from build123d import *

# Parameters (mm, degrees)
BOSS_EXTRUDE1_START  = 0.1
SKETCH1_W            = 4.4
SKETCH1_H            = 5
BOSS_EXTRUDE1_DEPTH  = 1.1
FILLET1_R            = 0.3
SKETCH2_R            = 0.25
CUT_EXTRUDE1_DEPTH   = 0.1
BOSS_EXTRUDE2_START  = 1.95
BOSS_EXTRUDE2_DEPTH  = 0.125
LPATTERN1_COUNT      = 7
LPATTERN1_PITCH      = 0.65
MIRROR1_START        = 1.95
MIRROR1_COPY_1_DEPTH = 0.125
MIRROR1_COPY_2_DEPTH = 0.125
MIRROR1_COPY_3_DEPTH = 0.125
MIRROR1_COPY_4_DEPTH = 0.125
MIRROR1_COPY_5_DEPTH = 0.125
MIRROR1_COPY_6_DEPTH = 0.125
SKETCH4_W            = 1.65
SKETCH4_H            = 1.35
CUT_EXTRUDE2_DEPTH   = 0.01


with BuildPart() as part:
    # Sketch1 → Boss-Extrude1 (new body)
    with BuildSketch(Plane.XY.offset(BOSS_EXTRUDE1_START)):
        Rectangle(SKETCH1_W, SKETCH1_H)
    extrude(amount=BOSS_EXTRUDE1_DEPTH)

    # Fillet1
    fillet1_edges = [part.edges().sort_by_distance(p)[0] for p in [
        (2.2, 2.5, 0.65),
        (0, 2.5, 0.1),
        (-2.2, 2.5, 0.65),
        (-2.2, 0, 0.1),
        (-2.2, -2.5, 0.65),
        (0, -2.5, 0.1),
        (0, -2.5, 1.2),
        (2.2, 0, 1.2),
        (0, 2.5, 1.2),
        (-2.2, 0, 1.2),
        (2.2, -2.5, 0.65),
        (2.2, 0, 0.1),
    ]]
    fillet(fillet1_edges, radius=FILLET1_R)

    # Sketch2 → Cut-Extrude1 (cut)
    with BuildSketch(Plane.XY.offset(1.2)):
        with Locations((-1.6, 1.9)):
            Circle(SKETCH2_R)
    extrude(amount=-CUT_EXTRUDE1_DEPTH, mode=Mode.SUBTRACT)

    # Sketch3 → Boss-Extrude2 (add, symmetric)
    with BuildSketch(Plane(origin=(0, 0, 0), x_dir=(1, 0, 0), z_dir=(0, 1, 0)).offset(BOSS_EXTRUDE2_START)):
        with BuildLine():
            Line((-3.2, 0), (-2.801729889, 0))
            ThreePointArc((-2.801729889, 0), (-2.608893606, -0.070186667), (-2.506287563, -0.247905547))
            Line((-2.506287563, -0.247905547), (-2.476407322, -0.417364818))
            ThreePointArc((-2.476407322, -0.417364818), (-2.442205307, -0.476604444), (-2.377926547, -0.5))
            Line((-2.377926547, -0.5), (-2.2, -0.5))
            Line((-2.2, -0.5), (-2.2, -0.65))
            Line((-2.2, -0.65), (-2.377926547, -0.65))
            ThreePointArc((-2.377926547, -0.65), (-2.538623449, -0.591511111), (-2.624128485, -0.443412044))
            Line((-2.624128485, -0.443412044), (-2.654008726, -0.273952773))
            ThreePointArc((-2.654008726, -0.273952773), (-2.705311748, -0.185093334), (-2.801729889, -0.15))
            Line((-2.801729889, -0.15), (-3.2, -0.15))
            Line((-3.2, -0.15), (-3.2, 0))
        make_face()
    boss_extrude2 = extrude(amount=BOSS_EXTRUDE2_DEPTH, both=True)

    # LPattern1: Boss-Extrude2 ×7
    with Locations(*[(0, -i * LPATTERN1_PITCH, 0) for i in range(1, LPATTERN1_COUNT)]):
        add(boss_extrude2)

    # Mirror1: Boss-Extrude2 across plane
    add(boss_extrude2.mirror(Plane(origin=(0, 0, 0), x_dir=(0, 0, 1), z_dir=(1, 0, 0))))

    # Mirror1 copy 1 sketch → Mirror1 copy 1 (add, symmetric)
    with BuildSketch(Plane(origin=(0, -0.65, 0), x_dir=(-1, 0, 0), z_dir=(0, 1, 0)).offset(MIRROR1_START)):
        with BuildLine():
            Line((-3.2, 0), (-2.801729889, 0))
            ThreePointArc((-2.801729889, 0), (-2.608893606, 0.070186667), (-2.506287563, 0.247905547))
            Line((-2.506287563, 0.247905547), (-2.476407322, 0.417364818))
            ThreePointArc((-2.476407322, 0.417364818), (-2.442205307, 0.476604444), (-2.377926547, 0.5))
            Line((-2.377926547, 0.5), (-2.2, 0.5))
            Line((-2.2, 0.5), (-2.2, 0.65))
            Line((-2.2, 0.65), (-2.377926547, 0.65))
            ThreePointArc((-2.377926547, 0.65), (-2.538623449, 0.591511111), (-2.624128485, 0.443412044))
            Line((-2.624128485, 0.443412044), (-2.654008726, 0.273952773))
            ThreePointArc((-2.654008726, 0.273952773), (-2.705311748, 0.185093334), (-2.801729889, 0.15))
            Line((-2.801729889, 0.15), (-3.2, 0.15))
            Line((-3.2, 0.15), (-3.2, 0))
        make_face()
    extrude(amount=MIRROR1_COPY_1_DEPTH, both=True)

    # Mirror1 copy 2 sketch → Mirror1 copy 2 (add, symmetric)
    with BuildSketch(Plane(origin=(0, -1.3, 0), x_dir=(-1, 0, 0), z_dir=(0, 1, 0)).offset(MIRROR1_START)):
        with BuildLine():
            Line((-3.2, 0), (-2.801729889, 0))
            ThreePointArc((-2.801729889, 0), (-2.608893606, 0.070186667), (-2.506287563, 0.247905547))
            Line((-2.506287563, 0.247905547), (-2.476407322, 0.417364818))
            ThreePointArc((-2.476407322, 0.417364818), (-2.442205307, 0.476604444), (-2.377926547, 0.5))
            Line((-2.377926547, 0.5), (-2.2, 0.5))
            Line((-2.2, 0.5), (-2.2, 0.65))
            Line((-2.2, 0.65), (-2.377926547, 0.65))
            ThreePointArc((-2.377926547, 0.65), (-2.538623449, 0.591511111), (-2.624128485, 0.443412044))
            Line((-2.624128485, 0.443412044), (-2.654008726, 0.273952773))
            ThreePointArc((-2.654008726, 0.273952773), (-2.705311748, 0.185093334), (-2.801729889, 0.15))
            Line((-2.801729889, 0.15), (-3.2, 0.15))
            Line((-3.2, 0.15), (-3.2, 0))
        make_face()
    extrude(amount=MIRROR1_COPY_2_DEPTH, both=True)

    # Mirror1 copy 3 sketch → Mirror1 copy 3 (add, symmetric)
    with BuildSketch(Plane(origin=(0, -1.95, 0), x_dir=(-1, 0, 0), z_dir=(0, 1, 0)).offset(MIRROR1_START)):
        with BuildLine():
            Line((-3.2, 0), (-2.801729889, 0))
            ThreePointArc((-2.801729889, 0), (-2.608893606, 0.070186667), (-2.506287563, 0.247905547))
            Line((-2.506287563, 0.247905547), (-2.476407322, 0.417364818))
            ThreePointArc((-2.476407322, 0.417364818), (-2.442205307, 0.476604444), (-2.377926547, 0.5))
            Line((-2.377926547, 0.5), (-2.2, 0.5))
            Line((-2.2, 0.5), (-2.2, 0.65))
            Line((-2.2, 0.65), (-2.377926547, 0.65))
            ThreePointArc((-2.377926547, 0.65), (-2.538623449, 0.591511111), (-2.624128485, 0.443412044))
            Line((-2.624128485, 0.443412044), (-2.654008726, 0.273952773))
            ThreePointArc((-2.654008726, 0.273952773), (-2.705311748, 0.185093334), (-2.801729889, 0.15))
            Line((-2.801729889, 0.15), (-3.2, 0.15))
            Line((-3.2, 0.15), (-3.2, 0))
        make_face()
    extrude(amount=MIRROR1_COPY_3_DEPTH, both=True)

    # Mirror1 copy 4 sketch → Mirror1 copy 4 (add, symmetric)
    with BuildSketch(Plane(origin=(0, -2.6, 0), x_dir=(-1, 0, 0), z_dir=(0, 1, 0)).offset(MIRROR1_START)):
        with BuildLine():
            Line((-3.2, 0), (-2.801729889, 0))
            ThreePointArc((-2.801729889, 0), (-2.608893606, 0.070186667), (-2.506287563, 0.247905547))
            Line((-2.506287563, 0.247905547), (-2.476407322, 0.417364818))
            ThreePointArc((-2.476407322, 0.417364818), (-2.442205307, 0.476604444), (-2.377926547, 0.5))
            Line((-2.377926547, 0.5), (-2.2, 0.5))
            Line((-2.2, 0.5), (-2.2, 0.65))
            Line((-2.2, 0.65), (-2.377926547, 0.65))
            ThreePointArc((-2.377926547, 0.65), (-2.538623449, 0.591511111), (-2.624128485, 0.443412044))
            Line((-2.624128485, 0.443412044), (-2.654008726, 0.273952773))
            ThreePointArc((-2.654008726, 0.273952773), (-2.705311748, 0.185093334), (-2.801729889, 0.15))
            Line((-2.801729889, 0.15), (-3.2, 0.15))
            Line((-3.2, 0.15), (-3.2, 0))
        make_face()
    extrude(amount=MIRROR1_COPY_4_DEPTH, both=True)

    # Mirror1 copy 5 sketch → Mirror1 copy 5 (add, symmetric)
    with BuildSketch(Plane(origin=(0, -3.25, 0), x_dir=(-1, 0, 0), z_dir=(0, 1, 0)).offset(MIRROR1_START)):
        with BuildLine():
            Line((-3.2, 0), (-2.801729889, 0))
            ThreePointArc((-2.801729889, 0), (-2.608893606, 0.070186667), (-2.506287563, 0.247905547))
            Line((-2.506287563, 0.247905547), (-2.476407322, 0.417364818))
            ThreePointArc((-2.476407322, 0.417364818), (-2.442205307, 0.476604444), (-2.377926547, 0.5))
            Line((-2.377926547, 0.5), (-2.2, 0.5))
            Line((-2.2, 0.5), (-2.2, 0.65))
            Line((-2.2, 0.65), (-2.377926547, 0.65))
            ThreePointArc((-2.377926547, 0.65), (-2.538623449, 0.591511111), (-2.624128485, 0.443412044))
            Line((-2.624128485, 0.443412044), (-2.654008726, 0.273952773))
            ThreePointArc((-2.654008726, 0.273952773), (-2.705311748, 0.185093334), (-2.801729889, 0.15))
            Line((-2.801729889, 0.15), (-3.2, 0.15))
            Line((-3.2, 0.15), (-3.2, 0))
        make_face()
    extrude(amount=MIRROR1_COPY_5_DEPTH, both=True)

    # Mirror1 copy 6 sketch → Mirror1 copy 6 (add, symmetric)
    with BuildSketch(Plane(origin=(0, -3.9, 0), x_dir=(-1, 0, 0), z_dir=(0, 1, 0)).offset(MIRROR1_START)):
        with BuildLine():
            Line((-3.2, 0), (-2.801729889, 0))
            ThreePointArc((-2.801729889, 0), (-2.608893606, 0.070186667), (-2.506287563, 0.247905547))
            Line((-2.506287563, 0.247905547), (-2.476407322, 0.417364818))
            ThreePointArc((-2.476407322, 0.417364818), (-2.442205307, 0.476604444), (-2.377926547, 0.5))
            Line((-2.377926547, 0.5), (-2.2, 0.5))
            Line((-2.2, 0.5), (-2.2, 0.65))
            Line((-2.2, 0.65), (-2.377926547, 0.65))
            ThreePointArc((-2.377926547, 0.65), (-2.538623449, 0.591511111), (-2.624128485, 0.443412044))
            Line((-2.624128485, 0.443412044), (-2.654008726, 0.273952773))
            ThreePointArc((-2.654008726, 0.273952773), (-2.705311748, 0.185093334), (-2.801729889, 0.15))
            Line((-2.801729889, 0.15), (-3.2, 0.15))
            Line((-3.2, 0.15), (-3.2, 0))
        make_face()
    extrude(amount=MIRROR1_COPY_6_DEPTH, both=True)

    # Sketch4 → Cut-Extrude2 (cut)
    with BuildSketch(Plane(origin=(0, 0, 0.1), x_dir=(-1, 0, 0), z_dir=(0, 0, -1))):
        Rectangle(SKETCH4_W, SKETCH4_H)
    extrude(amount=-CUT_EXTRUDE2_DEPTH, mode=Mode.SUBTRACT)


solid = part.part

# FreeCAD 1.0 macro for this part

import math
import FreeCAD as App
import Part
import Sketcher
from FreeCAD import Vector
Q = App.Units.Quantity

doc = App.newDocument("Part")
body = doc.addObject("PartDesign::Body", "Body")

# Sketch on XY plane
sketch1 = body.newObject("Sketcher::SketchObject", "Sketch")
sketch1.AttachmentSupport = (doc.getObject("XY_Plane"), [""])
sketch1.MapMode = "FlatFace"
sketch1.AttachmentOffset = App.Placement(Vector(0, 0, 0.1), App.Rotation())
sketch1.addGeometry(Part.LineSegment(Vector(-2.2, 2.5, 0), Vector(-2.2, -2.5, 0)), False)
sketch1.addGeometry(Part.LineSegment(Vector(-2.2, -2.5, 0), Vector(2.2, -2.5, 0)), False)
sketch1.addGeometry(Part.LineSegment(Vector(2.2, -2.5, 0), Vector(2.2, 2.5, 0)), False)
sketch1.addGeometry(Part.LineSegment(Vector(2.2, 2.5, 0), Vector(-2.2, 2.5, 0)), False)
sketch1.addConstraint(Sketcher.Constraint("Coincident", 0, 2, 1, 1))
sketch1.addConstraint(Sketcher.Constraint("Coincident", 1, 2, 2, 1))
sketch1.addConstraint(Sketcher.Constraint("Coincident", 2, 2, 3, 1))
sketch1.addConstraint(Sketcher.Constraint("Coincident", 3, 2, 0, 1))
sketch1.addConstraint(Sketcher.Constraint("Vertical", 0))
sketch1.addConstraint(Sketcher.Constraint("Horizontal", 1))
sketch1.addConstraint(Sketcher.Constraint("Vertical", 2))
sketch1.addConstraint(Sketcher.Constraint("Horizontal", 3))
sketch1.addConstraint(Sketcher.Constraint("Symmetric", 0, 2, 2, 2, -1, 1))
sketch1.addConstraint(Sketcher.Constraint("DistanceY", 0, 2, 0, 1, Q("5 mm")))
sketch1.addConstraint(Sketcher.Constraint("DistanceX", 1, 1, 1, 2, Q("4.4 mm")))
pad1 = body.newObject("PartDesign::Pad", "Pad")
pad1.Profile = sketch1
pad1.Length = 1.1
doc.recompute()

fillet = body.newObject("PartDesign::Fillet", "Fillet")
fillet.Base = (pad1, ["Edge1"])
fillet.UseAllEdges = True
fillet.Radius = 0.3

# Sketch on XY plane
sketch2 = body.newObject("Sketcher::SketchObject", "Sketch001")
sketch2.AttachmentSupport = (doc.getObject("XY_Plane"), [""])
sketch2.MapMode = "FlatFace"
sketch2.AttachmentOffset = App.Placement(Vector(0, 0, 1.2), App.Rotation())
sketch2.addGeometry(Part.Circle(Vector(-1.6, 1.9, 0), Vector(0, 0, 1), 0.25), False)
sketch2.addConstraint(Sketcher.Constraint("Diameter", 0, Q("0.5 mm")))
sketch2.addConstraint(Sketcher.Constraint("DistanceX", 0, 3, -1, 1, Q("1.6 mm")))
sketch2.addConstraint(Sketcher.Constraint("DistanceY", -1, 1, 0, 3, Q("1.9 mm")))
pocket1 = body.newObject("PartDesign::Pocket", "Pocket")
pocket1.Profile = sketch2
pocket1.Length = 0.1

# Sketch on XZ plane
sketch3 = body.newObject("Sketcher::SketchObject", "Sketch002")
sketch3.AttachmentSupport = (doc.getObject("XZ_Plane"), [""])
sketch3.MapMode = "FlatFace"
sketch3.AttachmentOffset = App.Placement(Vector(0, 0, -1.95), App.Rotation())
sketch3.addGeometry(Part.LineSegment(Vector(-2.8, 0, 0), Vector(-3.2, 0, 0)), False)
sketch3.addGeometry(Part.LineSegment(Vector(-3.2, 0, 0), Vector(-3.2, 0.15, 0)), False)
sketch3.addGeometry(Part.LineSegment(Vector(-3.2, 0.15, 0), Vector(-2.8, 0.15, 0)), False)
sketch3.addGeometry(Part.ArcOfCircle(Part.Circle(Vector(-2.8, 0.3, 0), Vector(0, 0, 1), 0.15), math.radians(-90), math.radians(-10)), False)
sketch3.addGeometry(Part.LineSegment(Vector(-2.65, 0.27, 0), Vector(-2.62, 0.44, 0)), False)
sketch3.addGeometry(Part.ArcOfCircle(Part.Circle(Vector(-2.38, 0.4, 0), Vector(0, 0, 1), 0.25), math.radians(90), math.radians(170)), False)
sketch3.addGeometry(Part.LineSegment(Vector(-2.38, 0.65, 0), Vector(-2.2, 0.65, 0)), False)
sketch3.addGeometry(Part.LineSegment(Vector(-2.2, 0.65, 0), Vector(-2.2, 0.5, 0)), False)
sketch3.addGeometry(Part.LineSegment(Vector(-2.2, 0.5, 0), Vector(-2.38, 0.5, 0)), False)
sketch3.addGeometry(Part.ArcOfCircle(Part.Circle(Vector(-2.38, 0.4, 0), Vector(0, 0, 1), 0.1), math.radians(90), math.radians(170)), False)
sketch3.addGeometry(Part.LineSegment(Vector(-2.48, 0.42, 0), Vector(-2.51, 0.25, 0)), False)
sketch3.addGeometry(Part.ArcOfCircle(Part.Circle(Vector(-2.8, 0.3, 0), Vector(0, 0, 1), 0.3), math.radians(-90), math.radians(-10)), False)
sketch3.addConstraint(Sketcher.Constraint("Coincident", 0, 2, 1, 1))
sketch3.addConstraint(Sketcher.Constraint("Coincident", 1, 2, 2, 1))
sketch3.addConstraint(Sketcher.Constraint("Tangent", 2, 2, 3, 1))
sketch3.addConstraint(Sketcher.Constraint("Tangent", 3, 2, 4, 1))
sketch3.addConstraint(Sketcher.Constraint("Tangent", 4, 2, 5, 2))
sketch3.addConstraint(Sketcher.Constraint("Tangent", 5, 1, 6, 1))
sketch3.addConstraint(Sketcher.Constraint("Coincident", 6, 2, 7, 1))
sketch3.addConstraint(Sketcher.Constraint("Coincident", 7, 2, 8, 1))
sketch3.addConstraint(Sketcher.Constraint("Tangent", 8, 2, 9, 1))
sketch3.addConstraint(Sketcher.Constraint("Tangent", 9, 2, 10, 1))
sketch3.addConstraint(Sketcher.Constraint("Tangent", 10, 2, 11, 2))
sketch3.addConstraint(Sketcher.Constraint("Tangent", 11, 1, 0, 1))
sketch3.addConstraint(Sketcher.Constraint("Horizontal", 0))
sketch3.addConstraint(Sketcher.Constraint("Vertical", 1))
sketch3.addConstraint(Sketcher.Constraint("Horizontal", 2))
sketch3.addConstraint(Sketcher.Constraint("Horizontal", 6))
sketch3.addConstraint(Sketcher.Constraint("Vertical", 7))
sketch3.addConstraint(Sketcher.Constraint("Horizontal", 8))
sketch3.addConstraint(Sketcher.Constraint("Coincident", 9, 3, 5, 3))
sketch3.addConstraint(Sketcher.Constraint("Coincident", 11, 3, 3, 3))
sketch3.addConstraint(Sketcher.Constraint("PointOnObject", 0, 2, -1))
sketch3.addConstraint(Sketcher.Constraint("Parallel", 4, 10))
sketch3.addConstraint(Sketcher.Constraint("Radius", 9, Q("0.1 mm")))
sketch3.addConstraint(Sketcher.Constraint("Radius", 11, Q("0.3 mm")))
sketch3.addConstraint(Sketcher.Constraint("Angle", 4, Q("80 deg")))
sketch3.addConstraint(Sketcher.Constraint("Radius", 3, Q("0.15 mm")))
sketch3.addConstraint(Sketcher.Constraint("DistanceY", -1, 1, 5, 3, Q("0.4 mm")))
sketch3.addConstraint(Sketcher.Constraint("DistanceX", 0, 2, -1, 1, Q("3.2 mm")))
sketch3.addConstraint(Sketcher.Constraint("DistanceX", 6, 2, -1, 1, Q("2.2 mm")))
sketch3.addConstraint(Sketcher.Constraint("DistanceX", 0, 2, 0, 1, Q("0.39827 mm")))
pad2 = body.newObject("PartDesign::Pad", "Pad001")
pad2.Profile = sketch3
pad2.Length = 0.25
pad2.Midplane = True
doc.recompute()

linearpattern = body.newObject("PartDesign::LinearPattern", "LinearPattern")
linearpattern.Originals = [pad2]
linearpattern.Direction = (doc.getObject("Y_Axis"), [""])
linearpattern.Mode = "offset"
linearpattern.Offset = 0.65
linearpattern.Occurrences = 7
linearpattern.Reversed = True
body.Tip = linearpattern
doc.recompute()

mirrored = body.newObject("PartDesign::Mirrored", "Mirrored")
mirrored.Originals = [pad2]
mirrored.MirrorPlane = (doc.getObject("YZ_Plane"), [""])
body.Tip = mirrored

# Sketch on XZ plane
sketch4 = body.newObject("Sketcher::SketchObject", "Sketch003")
sketch4.AttachmentSupport = (doc.getObject("XZ_Plane"), [""])
sketch4.MapMode = "FlatFace"
sketch4.AttachmentOffset = App.Placement(Vector(0, 0, -1.3), App.Rotation())
sketch4.addGeometry(Part.LineSegment(Vector(3.2, 0, 0), Vector(2.8, 0, 0)), False)
sketch4.addGeometry(Part.ArcOfCircle(Part.Circle(Vector(2.8, 0.3, 0), Vector(0, 0, 1), 0.3), math.radians(-170), math.radians(-90)), False)
sketch4.addGeometry(Part.LineSegment(Vector(2.51, 0.25, 0), Vector(2.48, 0.42, 0)), False)
sketch4.addGeometry(Part.ArcOfCircle(Part.Circle(Vector(2.38, 0.4, 0), Vector(0, 0, 1), 0.1), math.radians(10), math.radians(90)), False)
sketch4.addGeometry(Part.LineSegment(Vector(2.38, 0.5, 0), Vector(2.2, 0.5, 0)), False)
sketch4.addGeometry(Part.LineSegment(Vector(2.2, 0.5, 0), Vector(2.2, 0.65, 0)), False)
sketch4.addGeometry(Part.LineSegment(Vector(2.2, 0.65, 0), Vector(2.38, 0.65, 0)), False)
sketch4.addGeometry(Part.ArcOfCircle(Part.Circle(Vector(2.38, 0.4, 0), Vector(0, 0, 1), 0.25), math.radians(10), math.radians(90)), False)
sketch4.addGeometry(Part.LineSegment(Vector(2.62, 0.44, 0), Vector(2.65, 0.27, 0)), False)
sketch4.addGeometry(Part.ArcOfCircle(Part.Circle(Vector(2.8, 0.3, 0), Vector(0, 0, 1), 0.15), math.radians(-170), math.radians(-90)), False)
sketch4.addGeometry(Part.LineSegment(Vector(2.8, 0.15, 0), Vector(3.2, 0.15, 0)), False)
sketch4.addGeometry(Part.LineSegment(Vector(3.2, 0.15, 0), Vector(3.2, 0, 0)), False)
sketch4.addConstraint(Sketcher.Constraint("Tangent", 0, 2, 1, 2))
sketch4.addConstraint(Sketcher.Constraint("Tangent", 1, 1, 2, 1))
sketch4.addConstraint(Sketcher.Constraint("Tangent", 2, 2, 3, 1))
sketch4.addConstraint(Sketcher.Constraint("Tangent", 3, 2, 4, 1))
sketch4.addConstraint(Sketcher.Constraint("Coincident", 4, 2, 5, 1))
sketch4.addConstraint(Sketcher.Constraint("Coincident", 5, 2, 6, 1))
sketch4.addConstraint(Sketcher.Constraint("Tangent", 6, 2, 7, 2))
sketch4.addConstraint(Sketcher.Constraint("Tangent", 7, 1, 8, 1))
sketch4.addConstraint(Sketcher.Constraint("Tangent", 8, 2, 9, 1))
sketch4.addConstraint(Sketcher.Constraint("Tangent", 9, 2, 10, 1))
sketch4.addConstraint(Sketcher.Constraint("Coincident", 10, 2, 11, 1))
sketch4.addConstraint(Sketcher.Constraint("Coincident", 11, 2, 0, 1))
sketch4.addConstraint(Sketcher.Constraint("Horizontal", 0))
sketch4.addConstraint(Sketcher.Constraint("Horizontal", 4))
sketch4.addConstraint(Sketcher.Constraint("Vertical", 5))
sketch4.addConstraint(Sketcher.Constraint("Horizontal", 6))
sketch4.addConstraint(Sketcher.Constraint("Horizontal", 10))
sketch4.addConstraint(Sketcher.Constraint("Vertical", 11))
sketch4.addConstraint(Sketcher.Constraint("Coincident", 7, 3, 3, 3))
sketch4.addConstraint(Sketcher.Constraint("Coincident", 9, 3, 1, 3))
sketch4.addConstraint(Sketcher.Constraint("PointOnObject", 0, 2, -1))
sketch4.addConstraint(Sketcher.Constraint("Parallel", 2, 8))
sketch4.addConstraint(Sketcher.Constraint("Radius", 1, Q("0.3 mm")))
sketch4.addConstraint(Sketcher.Constraint("Radius", 3, Q("0.1 mm")))
sketch4.addConstraint(Sketcher.Constraint("Angle", 2, Q("100 deg")))
sketch4.addConstraint(Sketcher.Constraint("Radius", 7, Q("0.25 mm")))
sketch4.addConstraint(Sketcher.Constraint("DistanceY", -1, 1, 3, 3, Q("0.4 mm")))
sketch4.addConstraint(Sketcher.Constraint("DistanceX", -1, 1, 4, 2, Q("2.2 mm")))
sketch4.addConstraint(Sketcher.Constraint("DistanceX", -1, 1, 10, 2, Q("3.2 mm")))
sketch4.addConstraint(Sketcher.Constraint("DistanceX", 0, 2, 0, 1, Q("0.39827 mm")))
pad3 = body.newObject("PartDesign::Pad", "Pad002")
pad3.Profile = sketch4
pad3.Length = 0.25
pad3.Midplane = True

# Sketch on XZ plane
sketch5 = body.newObject("Sketcher::SketchObject", "Sketch004")
sketch5.AttachmentSupport = (doc.getObject("XZ_Plane"), [""])
sketch5.MapMode = "FlatFace"
sketch5.AttachmentOffset = App.Placement(Vector(0, 0, -0.65), App.Rotation())
sketch5.addGeometry(Part.LineSegment(Vector(3.2, 0, 0), Vector(2.8, 0, 0)), False)
sketch5.addGeometry(Part.ArcOfCircle(Part.Circle(Vector(2.8, 0.3, 0), Vector(0, 0, 1), 0.3), math.radians(-170), math.radians(-90)), False)
sketch5.addGeometry(Part.LineSegment(Vector(2.51, 0.25, 0), Vector(2.48, 0.42, 0)), False)
sketch5.addGeometry(Part.ArcOfCircle(Part.Circle(Vector(2.38, 0.4, 0), Vector(0, 0, 1), 0.1), math.radians(10), math.radians(90)), False)
sketch5.addGeometry(Part.LineSegment(Vector(2.38, 0.5, 0), Vector(2.2, 0.5, 0)), False)
sketch5.addGeometry(Part.LineSegment(Vector(2.2, 0.5, 0), Vector(2.2, 0.65, 0)), False)
sketch5.addGeometry(Part.LineSegment(Vector(2.2, 0.65, 0), Vector(2.38, 0.65, 0)), False)
sketch5.addGeometry(Part.ArcOfCircle(Part.Circle(Vector(2.38, 0.4, 0), Vector(0, 0, 1), 0.25), math.radians(10), math.radians(90)), False)
sketch5.addGeometry(Part.LineSegment(Vector(2.62, 0.44, 0), Vector(2.65, 0.27, 0)), False)
sketch5.addGeometry(Part.ArcOfCircle(Part.Circle(Vector(2.8, 0.3, 0), Vector(0, 0, 1), 0.15), math.radians(-170), math.radians(-90)), False)
sketch5.addGeometry(Part.LineSegment(Vector(2.8, 0.15, 0), Vector(3.2, 0.15, 0)), False)
sketch5.addGeometry(Part.LineSegment(Vector(3.2, 0.15, 0), Vector(3.2, 0, 0)), False)
sketch5.addConstraint(Sketcher.Constraint("Tangent", 0, 2, 1, 2))
sketch5.addConstraint(Sketcher.Constraint("Tangent", 1, 1, 2, 1))
sketch5.addConstraint(Sketcher.Constraint("Tangent", 2, 2, 3, 1))
sketch5.addConstraint(Sketcher.Constraint("Tangent", 3, 2, 4, 1))
sketch5.addConstraint(Sketcher.Constraint("Coincident", 4, 2, 5, 1))
sketch5.addConstraint(Sketcher.Constraint("Coincident", 5, 2, 6, 1))
sketch5.addConstraint(Sketcher.Constraint("Tangent", 6, 2, 7, 2))
sketch5.addConstraint(Sketcher.Constraint("Tangent", 7, 1, 8, 1))
sketch5.addConstraint(Sketcher.Constraint("Tangent", 8, 2, 9, 1))
sketch5.addConstraint(Sketcher.Constraint("Tangent", 9, 2, 10, 1))
sketch5.addConstraint(Sketcher.Constraint("Coincident", 10, 2, 11, 1))
sketch5.addConstraint(Sketcher.Constraint("Coincident", 11, 2, 0, 1))
sketch5.addConstraint(Sketcher.Constraint("Horizontal", 0))
sketch5.addConstraint(Sketcher.Constraint("Horizontal", 4))
sketch5.addConstraint(Sketcher.Constraint("Vertical", 5))
sketch5.addConstraint(Sketcher.Constraint("Horizontal", 6))
sketch5.addConstraint(Sketcher.Constraint("Horizontal", 10))
sketch5.addConstraint(Sketcher.Constraint("Vertical", 11))
sketch5.addConstraint(Sketcher.Constraint("Coincident", 7, 3, 3, 3))
sketch5.addConstraint(Sketcher.Constraint("Coincident", 9, 3, 1, 3))
sketch5.addConstraint(Sketcher.Constraint("PointOnObject", 0, 2, -1))
sketch5.addConstraint(Sketcher.Constraint("Parallel", 2, 8))
sketch5.addConstraint(Sketcher.Constraint("Radius", 1, Q("0.3 mm")))
sketch5.addConstraint(Sketcher.Constraint("Radius", 3, Q("0.1 mm")))
sketch5.addConstraint(Sketcher.Constraint("Angle", 2, Q("100 deg")))
sketch5.addConstraint(Sketcher.Constraint("Radius", 7, Q("0.25 mm")))
sketch5.addConstraint(Sketcher.Constraint("DistanceY", -1, 1, 3, 3, Q("0.4 mm")))
sketch5.addConstraint(Sketcher.Constraint("DistanceX", -1, 1, 4, 2, Q("2.2 mm")))
sketch5.addConstraint(Sketcher.Constraint("DistanceX", -1, 1, 10, 2, Q("3.2 mm")))
sketch5.addConstraint(Sketcher.Constraint("DistanceX", 0, 2, 0, 1, Q("0.39827 mm")))
pad4 = body.newObject("PartDesign::Pad", "Pad003")
pad4.Profile = sketch5
pad4.Length = 0.25
pad4.Midplane = True

# Sketch on XZ plane
sketch6 = body.newObject("Sketcher::SketchObject", "Sketch005")
sketch6.AttachmentSupport = (doc.getObject("XZ_Plane"), [""])
sketch6.MapMode = "FlatFace"
sketch6.addGeometry(Part.LineSegment(Vector(3.2, 0, 0), Vector(2.8, 0, 0)), False)
sketch6.addGeometry(Part.ArcOfCircle(Part.Circle(Vector(2.8, 0.3, 0), Vector(0, 0, 1), 0.3), math.radians(-170), math.radians(-90)), False)
sketch6.addGeometry(Part.LineSegment(Vector(2.51, 0.25, 0), Vector(2.48, 0.42, 0)), False)
sketch6.addGeometry(Part.ArcOfCircle(Part.Circle(Vector(2.38, 0.4, 0), Vector(0, 0, 1), 0.1), math.radians(10), math.radians(90)), False)
sketch6.addGeometry(Part.LineSegment(Vector(2.38, 0.5, 0), Vector(2.2, 0.5, 0)), False)
sketch6.addGeometry(Part.LineSegment(Vector(2.2, 0.5, 0), Vector(2.2, 0.65, 0)), False)
sketch6.addGeometry(Part.LineSegment(Vector(2.2, 0.65, 0), Vector(2.38, 0.65, 0)), False)
sketch6.addGeometry(Part.ArcOfCircle(Part.Circle(Vector(2.38, 0.4, 0), Vector(0, 0, 1), 0.25), math.radians(10), math.radians(90)), False)
sketch6.addGeometry(Part.LineSegment(Vector(2.62, 0.44, 0), Vector(2.65, 0.27, 0)), False)
sketch6.addGeometry(Part.ArcOfCircle(Part.Circle(Vector(2.8, 0.3, 0), Vector(0, 0, 1), 0.15), math.radians(-170), math.radians(-90)), False)
sketch6.addGeometry(Part.LineSegment(Vector(2.8, 0.15, 0), Vector(3.2, 0.15, 0)), False)
sketch6.addGeometry(Part.LineSegment(Vector(3.2, 0.15, 0), Vector(3.2, 0, 0)), False)
sketch6.addConstraint(Sketcher.Constraint("Tangent", 0, 2, 1, 2))
sketch6.addConstraint(Sketcher.Constraint("Tangent", 1, 1, 2, 1))
sketch6.addConstraint(Sketcher.Constraint("Tangent", 2, 2, 3, 1))
sketch6.addConstraint(Sketcher.Constraint("Tangent", 3, 2, 4, 1))
sketch6.addConstraint(Sketcher.Constraint("Coincident", 4, 2, 5, 1))
sketch6.addConstraint(Sketcher.Constraint("Coincident", 5, 2, 6, 1))
sketch6.addConstraint(Sketcher.Constraint("Tangent", 6, 2, 7, 2))
sketch6.addConstraint(Sketcher.Constraint("Tangent", 7, 1, 8, 1))
sketch6.addConstraint(Sketcher.Constraint("Tangent", 8, 2, 9, 1))
sketch6.addConstraint(Sketcher.Constraint("Tangent", 9, 2, 10, 1))
sketch6.addConstraint(Sketcher.Constraint("Coincident", 10, 2, 11, 1))
sketch6.addConstraint(Sketcher.Constraint("Coincident", 11, 2, 0, 1))
sketch6.addConstraint(Sketcher.Constraint("Horizontal", 0))
sketch6.addConstraint(Sketcher.Constraint("Horizontal", 4))
sketch6.addConstraint(Sketcher.Constraint("Vertical", 5))
sketch6.addConstraint(Sketcher.Constraint("Horizontal", 6))
sketch6.addConstraint(Sketcher.Constraint("Horizontal", 10))
sketch6.addConstraint(Sketcher.Constraint("Vertical", 11))
sketch6.addConstraint(Sketcher.Constraint("Coincident", 7, 3, 3, 3))
sketch6.addConstraint(Sketcher.Constraint("Coincident", 9, 3, 1, 3))
sketch6.addConstraint(Sketcher.Constraint("PointOnObject", 0, 2, -1))
sketch6.addConstraint(Sketcher.Constraint("Parallel", 2, 8))
sketch6.addConstraint(Sketcher.Constraint("Radius", 1, Q("0.3 mm")))
sketch6.addConstraint(Sketcher.Constraint("Radius", 3, Q("0.1 mm")))
sketch6.addConstraint(Sketcher.Constraint("Angle", 2, Q("100 deg")))
sketch6.addConstraint(Sketcher.Constraint("Radius", 7, Q("0.25 mm")))
sketch6.addConstraint(Sketcher.Constraint("DistanceY", -1, 1, 3, 3, Q("0.4 mm")))
sketch6.addConstraint(Sketcher.Constraint("DistanceX", -1, 1, 4, 2, Q("2.2 mm")))
sketch6.addConstraint(Sketcher.Constraint("DistanceX", -1, 1, 10, 2, Q("3.2 mm")))
sketch6.addConstraint(Sketcher.Constraint("DistanceX", 0, 2, 0, 1, Q("0.39827 mm")))
pad5 = body.newObject("PartDesign::Pad", "Pad004")
pad5.Profile = sketch6
pad5.Length = 0.25
pad5.Midplane = True

# Sketch on XZ plane
sketch7 = body.newObject("Sketcher::SketchObject", "Sketch006")
sketch7.AttachmentSupport = (doc.getObject("XZ_Plane"), [""])
sketch7.MapMode = "FlatFace"
sketch7.AttachmentOffset = App.Placement(Vector(0, 0, 0.65), App.Rotation())
sketch7.addGeometry(Part.LineSegment(Vector(3.2, 0, 0), Vector(2.8, 0, 0)), False)
sketch7.addGeometry(Part.ArcOfCircle(Part.Circle(Vector(2.8, 0.3, 0), Vector(0, 0, 1), 0.3), math.radians(-170), math.radians(-90)), False)
sketch7.addGeometry(Part.LineSegment(Vector(2.51, 0.25, 0), Vector(2.48, 0.42, 0)), False)
sketch7.addGeometry(Part.ArcOfCircle(Part.Circle(Vector(2.38, 0.4, 0), Vector(0, 0, 1), 0.1), math.radians(10), math.radians(90)), False)
sketch7.addGeometry(Part.LineSegment(Vector(2.38, 0.5, 0), Vector(2.2, 0.5, 0)), False)
sketch7.addGeometry(Part.LineSegment(Vector(2.2, 0.5, 0), Vector(2.2, 0.65, 0)), False)
sketch7.addGeometry(Part.LineSegment(Vector(2.2, 0.65, 0), Vector(2.38, 0.65, 0)), False)
sketch7.addGeometry(Part.ArcOfCircle(Part.Circle(Vector(2.38, 0.4, 0), Vector(0, 0, 1), 0.25), math.radians(10), math.radians(90)), False)
sketch7.addGeometry(Part.LineSegment(Vector(2.62, 0.44, 0), Vector(2.65, 0.27, 0)), False)
sketch7.addGeometry(Part.ArcOfCircle(Part.Circle(Vector(2.8, 0.3, 0), Vector(0, 0, 1), 0.15), math.radians(-170), math.radians(-90)), False)
sketch7.addGeometry(Part.LineSegment(Vector(2.8, 0.15, 0), Vector(3.2, 0.15, 0)), False)
sketch7.addGeometry(Part.LineSegment(Vector(3.2, 0.15, 0), Vector(3.2, 0, 0)), False)
sketch7.addConstraint(Sketcher.Constraint("Tangent", 0, 2, 1, 2))
sketch7.addConstraint(Sketcher.Constraint("Tangent", 1, 1, 2, 1))
sketch7.addConstraint(Sketcher.Constraint("Tangent", 2, 2, 3, 1))
sketch7.addConstraint(Sketcher.Constraint("Tangent", 3, 2, 4, 1))
sketch7.addConstraint(Sketcher.Constraint("Coincident", 4, 2, 5, 1))
sketch7.addConstraint(Sketcher.Constraint("Coincident", 5, 2, 6, 1))
sketch7.addConstraint(Sketcher.Constraint("Tangent", 6, 2, 7, 2))
sketch7.addConstraint(Sketcher.Constraint("Tangent", 7, 1, 8, 1))
sketch7.addConstraint(Sketcher.Constraint("Tangent", 8, 2, 9, 1))
sketch7.addConstraint(Sketcher.Constraint("Tangent", 9, 2, 10, 1))
sketch7.addConstraint(Sketcher.Constraint("Coincident", 10, 2, 11, 1))
sketch7.addConstraint(Sketcher.Constraint("Coincident", 11, 2, 0, 1))
sketch7.addConstraint(Sketcher.Constraint("Horizontal", 0))
sketch7.addConstraint(Sketcher.Constraint("Horizontal", 4))
sketch7.addConstraint(Sketcher.Constraint("Vertical", 5))
sketch7.addConstraint(Sketcher.Constraint("Horizontal", 6))
sketch7.addConstraint(Sketcher.Constraint("Horizontal", 10))
sketch7.addConstraint(Sketcher.Constraint("Vertical", 11))
sketch7.addConstraint(Sketcher.Constraint("Coincident", 7, 3, 3, 3))
sketch7.addConstraint(Sketcher.Constraint("Coincident", 9, 3, 1, 3))
sketch7.addConstraint(Sketcher.Constraint("PointOnObject", 0, 2, -1))
sketch7.addConstraint(Sketcher.Constraint("Parallel", 2, 8))
sketch7.addConstraint(Sketcher.Constraint("Radius", 1, Q("0.3 mm")))
sketch7.addConstraint(Sketcher.Constraint("Radius", 3, Q("0.1 mm")))
sketch7.addConstraint(Sketcher.Constraint("Angle", 2, Q("100 deg")))
sketch7.addConstraint(Sketcher.Constraint("Radius", 7, Q("0.25 mm")))
sketch7.addConstraint(Sketcher.Constraint("DistanceY", -1, 1, 3, 3, Q("0.4 mm")))
sketch7.addConstraint(Sketcher.Constraint("DistanceX", -1, 1, 4, 2, Q("2.2 mm")))
sketch7.addConstraint(Sketcher.Constraint("DistanceX", -1, 1, 10, 2, Q("3.2 mm")))
sketch7.addConstraint(Sketcher.Constraint("DistanceX", 0, 2, 0, 1, Q("0.39827 mm")))
pad6 = body.newObject("PartDesign::Pad", "Pad005")
pad6.Profile = sketch7
pad6.Length = 0.25
pad6.Midplane = True

# Sketch on XZ plane
sketch8 = body.newObject("Sketcher::SketchObject", "Sketch007")
sketch8.AttachmentSupport = (doc.getObject("XZ_Plane"), [""])
sketch8.MapMode = "FlatFace"
sketch8.AttachmentOffset = App.Placement(Vector(0, 0, 1.3), App.Rotation())
sketch8.addGeometry(Part.LineSegment(Vector(3.2, 0, 0), Vector(2.8, 0, 0)), False)
sketch8.addGeometry(Part.ArcOfCircle(Part.Circle(Vector(2.8, 0.3, 0), Vector(0, 0, 1), 0.3), math.radians(-170), math.radians(-90)), False)
sketch8.addGeometry(Part.LineSegment(Vector(2.51, 0.25, 0), Vector(2.48, 0.42, 0)), False)
sketch8.addGeometry(Part.ArcOfCircle(Part.Circle(Vector(2.38, 0.4, 0), Vector(0, 0, 1), 0.1), math.radians(10), math.radians(90)), False)
sketch8.addGeometry(Part.LineSegment(Vector(2.38, 0.5, 0), Vector(2.2, 0.5, 0)), False)
sketch8.addGeometry(Part.LineSegment(Vector(2.2, 0.5, 0), Vector(2.2, 0.65, 0)), False)
sketch8.addGeometry(Part.LineSegment(Vector(2.2, 0.65, 0), Vector(2.38, 0.65, 0)), False)
sketch8.addGeometry(Part.ArcOfCircle(Part.Circle(Vector(2.38, 0.4, 0), Vector(0, 0, 1), 0.25), math.radians(10), math.radians(90)), False)
sketch8.addGeometry(Part.LineSegment(Vector(2.62, 0.44, 0), Vector(2.65, 0.27, 0)), False)
sketch8.addGeometry(Part.ArcOfCircle(Part.Circle(Vector(2.8, 0.3, 0), Vector(0, 0, 1), 0.15), math.radians(-170), math.radians(-90)), False)
sketch8.addGeometry(Part.LineSegment(Vector(2.8, 0.15, 0), Vector(3.2, 0.15, 0)), False)
sketch8.addGeometry(Part.LineSegment(Vector(3.2, 0.15, 0), Vector(3.2, 0, 0)), False)
sketch8.addConstraint(Sketcher.Constraint("Tangent", 0, 2, 1, 2))
sketch8.addConstraint(Sketcher.Constraint("Tangent", 1, 1, 2, 1))
sketch8.addConstraint(Sketcher.Constraint("Tangent", 2, 2, 3, 1))
sketch8.addConstraint(Sketcher.Constraint("Tangent", 3, 2, 4, 1))
sketch8.addConstraint(Sketcher.Constraint("Coincident", 4, 2, 5, 1))
sketch8.addConstraint(Sketcher.Constraint("Coincident", 5, 2, 6, 1))
sketch8.addConstraint(Sketcher.Constraint("Tangent", 6, 2, 7, 2))
sketch8.addConstraint(Sketcher.Constraint("Tangent", 7, 1, 8, 1))
sketch8.addConstraint(Sketcher.Constraint("Tangent", 8, 2, 9, 1))
sketch8.addConstraint(Sketcher.Constraint("Tangent", 9, 2, 10, 1))
sketch8.addConstraint(Sketcher.Constraint("Coincident", 10, 2, 11, 1))
sketch8.addConstraint(Sketcher.Constraint("Coincident", 11, 2, 0, 1))
sketch8.addConstraint(Sketcher.Constraint("Horizontal", 0))
sketch8.addConstraint(Sketcher.Constraint("Horizontal", 4))
sketch8.addConstraint(Sketcher.Constraint("Vertical", 5))
sketch8.addConstraint(Sketcher.Constraint("Horizontal", 6))
sketch8.addConstraint(Sketcher.Constraint("Horizontal", 10))
sketch8.addConstraint(Sketcher.Constraint("Vertical", 11))
sketch8.addConstraint(Sketcher.Constraint("Coincident", 7, 3, 3, 3))
sketch8.addConstraint(Sketcher.Constraint("Coincident", 9, 3, 1, 3))
sketch8.addConstraint(Sketcher.Constraint("PointOnObject", 0, 2, -1))
sketch8.addConstraint(Sketcher.Constraint("Parallel", 2, 8))
sketch8.addConstraint(Sketcher.Constraint("Radius", 1, Q("0.3 mm")))
sketch8.addConstraint(Sketcher.Constraint("Radius", 3, Q("0.1 mm")))
sketch8.addConstraint(Sketcher.Constraint("Angle", 2, Q("100 deg")))
sketch8.addConstraint(Sketcher.Constraint("Radius", 7, Q("0.25 mm")))
sketch8.addConstraint(Sketcher.Constraint("DistanceY", -1, 1, 3, 3, Q("0.4 mm")))
sketch8.addConstraint(Sketcher.Constraint("DistanceX", -1, 1, 4, 2, Q("2.2 mm")))
sketch8.addConstraint(Sketcher.Constraint("DistanceX", -1, 1, 10, 2, Q("3.2 mm")))
sketch8.addConstraint(Sketcher.Constraint("DistanceX", 0, 2, 0, 1, Q("0.39827 mm")))
pad7 = body.newObject("PartDesign::Pad", "Pad006")
pad7.Profile = sketch8
pad7.Length = 0.25
pad7.Midplane = True

# Sketch on XZ plane
sketch9 = body.newObject("Sketcher::SketchObject", "Sketch008")
sketch9.AttachmentSupport = (doc.getObject("XZ_Plane"), [""])
sketch9.MapMode = "FlatFace"
sketch9.AttachmentOffset = App.Placement(Vector(0, 0, 1.95), App.Rotation())
sketch9.addGeometry(Part.LineSegment(Vector(3.2, 0, 0), Vector(2.8, 0, 0)), False)
sketch9.addGeometry(Part.ArcOfCircle(Part.Circle(Vector(2.8, 0.3, 0), Vector(0, 0, 1), 0.3), math.radians(-170), math.radians(-90)), False)
sketch9.addGeometry(Part.LineSegment(Vector(2.51, 0.25, 0), Vector(2.48, 0.42, 0)), False)
sketch9.addGeometry(Part.ArcOfCircle(Part.Circle(Vector(2.38, 0.4, 0), Vector(0, 0, 1), 0.1), math.radians(10), math.radians(90)), False)
sketch9.addGeometry(Part.LineSegment(Vector(2.38, 0.5, 0), Vector(2.2, 0.5, 0)), False)
sketch9.addGeometry(Part.LineSegment(Vector(2.2, 0.5, 0), Vector(2.2, 0.65, 0)), False)
sketch9.addGeometry(Part.LineSegment(Vector(2.2, 0.65, 0), Vector(2.38, 0.65, 0)), False)
sketch9.addGeometry(Part.ArcOfCircle(Part.Circle(Vector(2.38, 0.4, 0), Vector(0, 0, 1), 0.25), math.radians(10), math.radians(90)), False)
sketch9.addGeometry(Part.LineSegment(Vector(2.62, 0.44, 0), Vector(2.65, 0.27, 0)), False)
sketch9.addGeometry(Part.ArcOfCircle(Part.Circle(Vector(2.8, 0.3, 0), Vector(0, 0, 1), 0.15), math.radians(-170), math.radians(-90)), False)
sketch9.addGeometry(Part.LineSegment(Vector(2.8, 0.15, 0), Vector(3.2, 0.15, 0)), False)
sketch9.addGeometry(Part.LineSegment(Vector(3.2, 0.15, 0), Vector(3.2, 0, 0)), False)
sketch9.addConstraint(Sketcher.Constraint("Tangent", 0, 2, 1, 2))
sketch9.addConstraint(Sketcher.Constraint("Tangent", 1, 1, 2, 1))
sketch9.addConstraint(Sketcher.Constraint("Tangent", 2, 2, 3, 1))
sketch9.addConstraint(Sketcher.Constraint("Tangent", 3, 2, 4, 1))
sketch9.addConstraint(Sketcher.Constraint("Coincident", 4, 2, 5, 1))
sketch9.addConstraint(Sketcher.Constraint("Coincident", 5, 2, 6, 1))
sketch9.addConstraint(Sketcher.Constraint("Tangent", 6, 2, 7, 2))
sketch9.addConstraint(Sketcher.Constraint("Tangent", 7, 1, 8, 1))
sketch9.addConstraint(Sketcher.Constraint("Tangent", 8, 2, 9, 1))
sketch9.addConstraint(Sketcher.Constraint("Tangent", 9, 2, 10, 1))
sketch9.addConstraint(Sketcher.Constraint("Coincident", 10, 2, 11, 1))
sketch9.addConstraint(Sketcher.Constraint("Coincident", 11, 2, 0, 1))
sketch9.addConstraint(Sketcher.Constraint("Horizontal", 0))
sketch9.addConstraint(Sketcher.Constraint("Horizontal", 4))
sketch9.addConstraint(Sketcher.Constraint("Vertical", 5))
sketch9.addConstraint(Sketcher.Constraint("Horizontal", 6))
sketch9.addConstraint(Sketcher.Constraint("Horizontal", 10))
sketch9.addConstraint(Sketcher.Constraint("Vertical", 11))
sketch9.addConstraint(Sketcher.Constraint("Coincident", 7, 3, 3, 3))
sketch9.addConstraint(Sketcher.Constraint("Coincident", 9, 3, 1, 3))
sketch9.addConstraint(Sketcher.Constraint("PointOnObject", 0, 2, -1))
sketch9.addConstraint(Sketcher.Constraint("Parallel", 2, 8))
sketch9.addConstraint(Sketcher.Constraint("Radius", 1, Q("0.3 mm")))
sketch9.addConstraint(Sketcher.Constraint("Radius", 3, Q("0.1 mm")))
sketch9.addConstraint(Sketcher.Constraint("Angle", 2, Q("100 deg")))
sketch9.addConstraint(Sketcher.Constraint("Radius", 7, Q("0.25 mm")))
sketch9.addConstraint(Sketcher.Constraint("DistanceY", -1, 1, 3, 3, Q("0.4 mm")))
sketch9.addConstraint(Sketcher.Constraint("DistanceX", -1, 1, 4, 2, Q("2.2 mm")))
sketch9.addConstraint(Sketcher.Constraint("DistanceX", -1, 1, 10, 2, Q("3.2 mm")))
sketch9.addConstraint(Sketcher.Constraint("DistanceX", 0, 2, 0, 1, Q("0.39827 mm")))
pad8 = body.newObject("PartDesign::Pad", "Pad007")
pad8.Profile = sketch9
pad8.Length = 0.25
pad8.Midplane = True

# Sketch on XY plane
sketch10 = body.newObject("Sketcher::SketchObject", "Sketch009")
sketch10.AttachmentSupport = (doc.getObject("XY_Plane"), [""])
sketch10.MapMode = "FlatFace"
sketch10.AttachmentOffset = App.Placement(Vector(0, 0, 0.1), App.Rotation())
sketch10.addGeometry(Part.LineSegment(Vector(0.8, 0.7, 0), Vector(0.8, -0.7, 0)), False)
sketch10.addGeometry(Part.LineSegment(Vector(0.8, -0.7, 0), Vector(-0.8, -0.7, 0)), False)
sketch10.addGeometry(Part.LineSegment(Vector(-0.8, -0.7, 0), Vector(-0.8, 0.7, 0)), False)
sketch10.addGeometry(Part.LineSegment(Vector(-0.8, 0.7, 0), Vector(0.8, 0.7, 0)), False)
sketch10.addConstraint(Sketcher.Constraint("Coincident", 0, 2, 1, 1))
sketch10.addConstraint(Sketcher.Constraint("Coincident", 1, 2, 2, 1))
sketch10.addConstraint(Sketcher.Constraint("Coincident", 2, 2, 3, 1))
sketch10.addConstraint(Sketcher.Constraint("Coincident", 3, 2, 0, 1))
sketch10.addConstraint(Sketcher.Constraint("Vertical", 0))
sketch10.addConstraint(Sketcher.Constraint("Horizontal", 1))
sketch10.addConstraint(Sketcher.Constraint("Vertical", 2))
sketch10.addConstraint(Sketcher.Constraint("Horizontal", 3))
sketch10.addConstraint(Sketcher.Constraint("Symmetric", 0, 2, 2, 2, -1, 1))
sketch10.addConstraint(Sketcher.Constraint("DistanceX", 1, 2, 1, 1, Q("1.65 mm")))
sketch10.addConstraint(Sketcher.Constraint("DistanceY", 0, 2, 0, 1, Q("1.35 mm")))
pocket2 = body.newObject("PartDesign::Pocket", "Pocket001")
pocket2.Profile = sketch10
pocket2.Length = 0.01
pocket2.Reversed = True

doc.recompute()
